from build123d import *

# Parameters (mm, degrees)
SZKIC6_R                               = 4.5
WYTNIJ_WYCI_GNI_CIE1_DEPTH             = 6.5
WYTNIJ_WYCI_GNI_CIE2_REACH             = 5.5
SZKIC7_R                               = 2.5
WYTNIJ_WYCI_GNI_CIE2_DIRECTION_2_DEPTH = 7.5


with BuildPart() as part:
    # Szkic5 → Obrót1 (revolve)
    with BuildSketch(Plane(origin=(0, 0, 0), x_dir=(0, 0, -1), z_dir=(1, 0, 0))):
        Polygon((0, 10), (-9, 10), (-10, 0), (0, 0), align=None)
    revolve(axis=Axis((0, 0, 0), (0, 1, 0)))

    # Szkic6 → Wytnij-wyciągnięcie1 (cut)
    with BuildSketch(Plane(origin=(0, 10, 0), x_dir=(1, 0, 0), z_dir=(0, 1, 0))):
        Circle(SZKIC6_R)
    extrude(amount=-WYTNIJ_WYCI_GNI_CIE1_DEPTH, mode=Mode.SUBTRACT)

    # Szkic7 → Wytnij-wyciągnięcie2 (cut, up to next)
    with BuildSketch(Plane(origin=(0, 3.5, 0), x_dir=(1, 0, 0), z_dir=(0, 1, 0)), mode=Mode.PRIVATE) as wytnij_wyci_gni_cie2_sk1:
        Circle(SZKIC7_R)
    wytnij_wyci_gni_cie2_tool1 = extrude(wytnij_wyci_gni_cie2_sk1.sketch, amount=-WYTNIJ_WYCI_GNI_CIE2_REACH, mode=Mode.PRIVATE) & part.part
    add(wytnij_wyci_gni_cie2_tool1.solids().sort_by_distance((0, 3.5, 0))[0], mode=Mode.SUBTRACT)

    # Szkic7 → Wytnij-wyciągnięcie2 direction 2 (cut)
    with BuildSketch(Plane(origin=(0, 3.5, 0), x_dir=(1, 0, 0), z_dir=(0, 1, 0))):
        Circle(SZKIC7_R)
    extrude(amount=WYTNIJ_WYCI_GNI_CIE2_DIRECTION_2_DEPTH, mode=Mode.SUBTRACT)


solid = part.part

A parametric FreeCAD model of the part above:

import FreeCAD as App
import Part
import Sketcher

V = App.Vector
Q = App.Units.Quantity


def add_polygon(sketch, points):
    """Adds a closed chain of lines whose ends are joined by coincident constraints."""
    first, n = sketch.GeometryCount, len(points)
    for a, b in zip(points, points[1:] + points[:1]):
        sketch.addGeometry(Part.LineSegment(App.Vector(*a, 0), App.Vector(*b, 0)), False)
    for i in range(n):
        sketch.addConstraint(Sketcher.Constraint("Coincident", first + i, 2, first + (i + 1) % n, 1))

doc = App.newDocument("Part")
body = doc.addObject("PartDesign::Body", "Body")

sketch1 = body.newObject("Sketcher::SketchObject", "Sketch")
sketch1.AttachmentSupport = (doc.getObject("YZ_Plane"), [""])
sketch1.MapMode = "FlatFace"
add_polygon(sketch1, [(10, 0), (10, 9), (0, 10), (0, 0)])
sketch1.addConstraint(Sketcher.Constraint("Vertical", 0))
sketch1.addConstraint(Sketcher.Constraint("Vertical", 2))
sketch1.addConstraint(Sketcher.Constraint("Horizontal", 3))
sketch1.addConstraint(Sketcher.Constraint("Coincident", 2, 2, -1, 1))
sketch1.addConstraint(Sketcher.Constraint("Equal", 3, 2))
sketch1.addConstraint(Sketcher.Constraint("DistanceX", 3, 1, 3, 2, Q("10 mm")))
sketch1.addConstraint(Sketcher.Constraint("DistanceY", 0, 1, 0, 2, Q("9 mm")))
revolution = body.newObject("PartDesign::Revolution", "Revolution")
revolution.Profile = sketch1
revolution.ReferenceAxis = (sketch1, ["H_Axis"])
revolution.Angle = 360

sketch2 = body.newObject("Sketcher::SketchObject", "Sketch001")
sketch2.AttachmentSupport = (doc.getObject("XZ_Plane"), [""])
sketch2.MapMode = "FlatFace"
sketch2.AttachmentOffset = App.Placement(V(0, 0, -10), App.Rotation())
sketch2.addGeometry(Part.Circle(V(0, 0, 0), V(0, 0, 1), 4.5), False)
sketch2.addConstraint(Sketcher.Constraint("Coincident", 0, 3, -1, 1))
sketch2.addConstraint(Sketcher.Constraint("Diameter", 0, Q("9 mm")))
pocket1 = body.newObject("PartDesign::Pocket", "Pocket")
pocket1.Profile = sketch2
pocket1.Length = 6.5
pocket1.Reversed = True

sketch3 = body.newObject("Sketcher::SketchObject", "Sketch002")
sketch3.AttachmentSupport = (doc.getObject("XZ_Plane"), [""])
sketch3.MapMode = "FlatFace"
sketch3.AttachmentOffset = App.Placement(V(0, 0, -3.5), App.Rotation())
sketch3.addGeometry(Part.Circle(V(0, 0, 0), V(0, 0, 1), 2.5), False)
sketch3.addConstraint(Sketcher.Constraint("Coincident", 0, 3, -1, 1))
sketch3.addConstraint(Sketcher.Constraint("Diameter", 0, Q("5 mm")))
pocket2 = body.newObject("PartDesign::Pocket", "Pocket001")
pocket2.Profile = sketch3
pocket2.Type = "UpToFirst"
pocket2.Reversed = True

sketch4 = body.newObject("Sketcher::SketchObject", "Sketch003")
sketch4.AttachmentSupport = (doc.getObject("XZ_Plane"), [""])
sketch4.MapMode = "FlatFace"
sketch4.AttachmentOffset = App.Placement(V(0, 0, -3.5), App.Rotation())
sketch4.addGeometry(Part.Circle(V(0, 0, 0), V(0, 0, 1), 2.5), False)
sketch4.addConstraint(Sketcher.Constraint("Coincident", 0, 3, -1, 1))
sketch4.addConstraint(Sketcher.Constraint("Diameter", 0, Q("5 mm")))
pocket3 = body.newObject("PartDesign::Pocket", "Pocket002")
pocket3.Profile = sketch4
pocket3.Length = 7.5

doc.recompute()
